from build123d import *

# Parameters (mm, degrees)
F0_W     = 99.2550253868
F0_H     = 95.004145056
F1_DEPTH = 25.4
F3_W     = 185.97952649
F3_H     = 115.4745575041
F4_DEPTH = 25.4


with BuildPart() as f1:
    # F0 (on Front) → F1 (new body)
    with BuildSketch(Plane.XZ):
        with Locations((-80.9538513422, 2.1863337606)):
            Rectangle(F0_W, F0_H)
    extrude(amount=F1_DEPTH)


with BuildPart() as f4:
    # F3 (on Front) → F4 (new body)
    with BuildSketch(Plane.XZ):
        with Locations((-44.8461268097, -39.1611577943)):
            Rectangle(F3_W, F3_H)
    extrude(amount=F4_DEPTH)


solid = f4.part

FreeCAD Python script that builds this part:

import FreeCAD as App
import Part
import Sketcher

V = App.Vector
Q = App.Units.Quantity

doc = App.newDocument("Part")
params = doc.addObject("Spreadsheet::Sheet", "Params")
for row, (alias, value) in enumerate([
    ("pad1_length", "1 in"),
    ("pad2_length", "1 in"),
], start=1):
    params.set(f"A{row}", alias)
    params.set(f"B{row}", "=" + value)
    params.setAlias(f"B{row}", alias)

body = doc.addObject("PartDesign::Body", "Body")

# Sketch on XZ plane
sketch1 = body.newObject("Sketcher::SketchObject", "Sketch")
sketch1.AttachmentSupport = (doc.getObject("XZ_Plane"), [""])
sketch1.MapMode = "FlatFace"
sketch1.addGeometry([
    Part.LineSegment(V(-131, 50, 0), V(-131, -45, 0)),
    Part.LineSegment(V(-131, -45, 0), V(-31, -45, 0)),
    Part.LineSegment(V(-31, -45, 0), V(-31, 50, 0)),
    Part.LineSegment(V(-31, 50, 0), V(-131, 50, 0)),
], False)
sketch1.addConstraint([
    Sketcher.Constraint("Coincident", 0, 2, 1, 1),
    Sketcher.Constraint("Coincident", 1, 2, 2, 1),
    Sketcher.Constraint("Coincident", 2, 2, 3, 1),
    Sketcher.Constraint("Coincident", 3, 2, 0, 1),
    Sketcher.Constraint("Vertical", 0),
    Sketcher.Constraint("Horizontal", 1),
    Sketcher.Constraint("Vertical", 2),
    Sketcher.Constraint("Horizontal", 3),
    Sketcher.Constraint("DistanceX", 1, 1, 1, 2, Q("99.255025 mm")),
    Sketcher.Constraint("DistanceY", 0, 2, 0, 1, Q("95.004145 mm")),
    Sketcher.Constraint("DistanceY", 0, 2, -1, 1, Q("45.315739 mm")),
    Sketcher.Constraint("DistanceX", 1, 2, -1, 1, Q("31.326339 mm")),
])
pad1 = body.newObject("PartDesign::Pad", "Pad")
pad1.Profile = sketch1
pad1.setExpression("Length", "Params.pad1_length")
body2 = doc.addObject("PartDesign::Body", "Body001")

# Sketch on XZ plane
sketch2 = body2.newObject("Sketcher::SketchObject", "Sketch001")
sketch2.AttachmentSupport = (doc.getObject("XZ_Plane001"), [""])
sketch2.MapMode = "FlatFace"
sketch2.addGeometry([
    Part.LineSegment(V(-138, 19, 0), V(-138, -97, 0)),
    Part.LineSegment(V(-138, -97, 0), V(48, -97, 0)),
    Part.LineSegment(V(48, -97, 0), V(48, 19, 0)),
    Part.LineSegment(V(48, 19, 0), V(-138, 19, 0)),
], False)
sketch2.addConstraint([
    Sketcher.Constraint("Coincident", 0, 2, 1, 1),
    Sketcher.Constraint("Coincident", 1, 2, 2, 1),
    Sketcher.Constraint("Coincident", 2, 2, 3, 1),
    Sketcher.Constraint("Coincident", 3, 2, 0, 1),
    Sketcher.Constraint("Vertical", 0),
    Sketcher.Constraint("Horizontal", 1),
    Sketcher.Constraint("Vertical", 2),
    Sketcher.Constraint("Horizontal", 3),
    Sketcher.Constraint("DistanceX", 1, 1, 1, 2, Q("185.979526 mm")),
    Sketcher.Constraint("DistanceY", 0, 2, 0, 1, Q("115.474558 mm")),
    Sketcher.Constraint("DistanceX", 0, 2, -1, 1, Q("137.83589 mm")),
    Sketcher.Constraint("DistanceY", -1, 1, 2, 2, Q("18.576121 mm")),
])
pad2 = body2.newObject("PartDesign::Pad", "Pad001")
pad2.Profile = sketch2
pad2.setExpression("Length", "Params.pad2_length")
body.Visibility = False

doc.recompute()
